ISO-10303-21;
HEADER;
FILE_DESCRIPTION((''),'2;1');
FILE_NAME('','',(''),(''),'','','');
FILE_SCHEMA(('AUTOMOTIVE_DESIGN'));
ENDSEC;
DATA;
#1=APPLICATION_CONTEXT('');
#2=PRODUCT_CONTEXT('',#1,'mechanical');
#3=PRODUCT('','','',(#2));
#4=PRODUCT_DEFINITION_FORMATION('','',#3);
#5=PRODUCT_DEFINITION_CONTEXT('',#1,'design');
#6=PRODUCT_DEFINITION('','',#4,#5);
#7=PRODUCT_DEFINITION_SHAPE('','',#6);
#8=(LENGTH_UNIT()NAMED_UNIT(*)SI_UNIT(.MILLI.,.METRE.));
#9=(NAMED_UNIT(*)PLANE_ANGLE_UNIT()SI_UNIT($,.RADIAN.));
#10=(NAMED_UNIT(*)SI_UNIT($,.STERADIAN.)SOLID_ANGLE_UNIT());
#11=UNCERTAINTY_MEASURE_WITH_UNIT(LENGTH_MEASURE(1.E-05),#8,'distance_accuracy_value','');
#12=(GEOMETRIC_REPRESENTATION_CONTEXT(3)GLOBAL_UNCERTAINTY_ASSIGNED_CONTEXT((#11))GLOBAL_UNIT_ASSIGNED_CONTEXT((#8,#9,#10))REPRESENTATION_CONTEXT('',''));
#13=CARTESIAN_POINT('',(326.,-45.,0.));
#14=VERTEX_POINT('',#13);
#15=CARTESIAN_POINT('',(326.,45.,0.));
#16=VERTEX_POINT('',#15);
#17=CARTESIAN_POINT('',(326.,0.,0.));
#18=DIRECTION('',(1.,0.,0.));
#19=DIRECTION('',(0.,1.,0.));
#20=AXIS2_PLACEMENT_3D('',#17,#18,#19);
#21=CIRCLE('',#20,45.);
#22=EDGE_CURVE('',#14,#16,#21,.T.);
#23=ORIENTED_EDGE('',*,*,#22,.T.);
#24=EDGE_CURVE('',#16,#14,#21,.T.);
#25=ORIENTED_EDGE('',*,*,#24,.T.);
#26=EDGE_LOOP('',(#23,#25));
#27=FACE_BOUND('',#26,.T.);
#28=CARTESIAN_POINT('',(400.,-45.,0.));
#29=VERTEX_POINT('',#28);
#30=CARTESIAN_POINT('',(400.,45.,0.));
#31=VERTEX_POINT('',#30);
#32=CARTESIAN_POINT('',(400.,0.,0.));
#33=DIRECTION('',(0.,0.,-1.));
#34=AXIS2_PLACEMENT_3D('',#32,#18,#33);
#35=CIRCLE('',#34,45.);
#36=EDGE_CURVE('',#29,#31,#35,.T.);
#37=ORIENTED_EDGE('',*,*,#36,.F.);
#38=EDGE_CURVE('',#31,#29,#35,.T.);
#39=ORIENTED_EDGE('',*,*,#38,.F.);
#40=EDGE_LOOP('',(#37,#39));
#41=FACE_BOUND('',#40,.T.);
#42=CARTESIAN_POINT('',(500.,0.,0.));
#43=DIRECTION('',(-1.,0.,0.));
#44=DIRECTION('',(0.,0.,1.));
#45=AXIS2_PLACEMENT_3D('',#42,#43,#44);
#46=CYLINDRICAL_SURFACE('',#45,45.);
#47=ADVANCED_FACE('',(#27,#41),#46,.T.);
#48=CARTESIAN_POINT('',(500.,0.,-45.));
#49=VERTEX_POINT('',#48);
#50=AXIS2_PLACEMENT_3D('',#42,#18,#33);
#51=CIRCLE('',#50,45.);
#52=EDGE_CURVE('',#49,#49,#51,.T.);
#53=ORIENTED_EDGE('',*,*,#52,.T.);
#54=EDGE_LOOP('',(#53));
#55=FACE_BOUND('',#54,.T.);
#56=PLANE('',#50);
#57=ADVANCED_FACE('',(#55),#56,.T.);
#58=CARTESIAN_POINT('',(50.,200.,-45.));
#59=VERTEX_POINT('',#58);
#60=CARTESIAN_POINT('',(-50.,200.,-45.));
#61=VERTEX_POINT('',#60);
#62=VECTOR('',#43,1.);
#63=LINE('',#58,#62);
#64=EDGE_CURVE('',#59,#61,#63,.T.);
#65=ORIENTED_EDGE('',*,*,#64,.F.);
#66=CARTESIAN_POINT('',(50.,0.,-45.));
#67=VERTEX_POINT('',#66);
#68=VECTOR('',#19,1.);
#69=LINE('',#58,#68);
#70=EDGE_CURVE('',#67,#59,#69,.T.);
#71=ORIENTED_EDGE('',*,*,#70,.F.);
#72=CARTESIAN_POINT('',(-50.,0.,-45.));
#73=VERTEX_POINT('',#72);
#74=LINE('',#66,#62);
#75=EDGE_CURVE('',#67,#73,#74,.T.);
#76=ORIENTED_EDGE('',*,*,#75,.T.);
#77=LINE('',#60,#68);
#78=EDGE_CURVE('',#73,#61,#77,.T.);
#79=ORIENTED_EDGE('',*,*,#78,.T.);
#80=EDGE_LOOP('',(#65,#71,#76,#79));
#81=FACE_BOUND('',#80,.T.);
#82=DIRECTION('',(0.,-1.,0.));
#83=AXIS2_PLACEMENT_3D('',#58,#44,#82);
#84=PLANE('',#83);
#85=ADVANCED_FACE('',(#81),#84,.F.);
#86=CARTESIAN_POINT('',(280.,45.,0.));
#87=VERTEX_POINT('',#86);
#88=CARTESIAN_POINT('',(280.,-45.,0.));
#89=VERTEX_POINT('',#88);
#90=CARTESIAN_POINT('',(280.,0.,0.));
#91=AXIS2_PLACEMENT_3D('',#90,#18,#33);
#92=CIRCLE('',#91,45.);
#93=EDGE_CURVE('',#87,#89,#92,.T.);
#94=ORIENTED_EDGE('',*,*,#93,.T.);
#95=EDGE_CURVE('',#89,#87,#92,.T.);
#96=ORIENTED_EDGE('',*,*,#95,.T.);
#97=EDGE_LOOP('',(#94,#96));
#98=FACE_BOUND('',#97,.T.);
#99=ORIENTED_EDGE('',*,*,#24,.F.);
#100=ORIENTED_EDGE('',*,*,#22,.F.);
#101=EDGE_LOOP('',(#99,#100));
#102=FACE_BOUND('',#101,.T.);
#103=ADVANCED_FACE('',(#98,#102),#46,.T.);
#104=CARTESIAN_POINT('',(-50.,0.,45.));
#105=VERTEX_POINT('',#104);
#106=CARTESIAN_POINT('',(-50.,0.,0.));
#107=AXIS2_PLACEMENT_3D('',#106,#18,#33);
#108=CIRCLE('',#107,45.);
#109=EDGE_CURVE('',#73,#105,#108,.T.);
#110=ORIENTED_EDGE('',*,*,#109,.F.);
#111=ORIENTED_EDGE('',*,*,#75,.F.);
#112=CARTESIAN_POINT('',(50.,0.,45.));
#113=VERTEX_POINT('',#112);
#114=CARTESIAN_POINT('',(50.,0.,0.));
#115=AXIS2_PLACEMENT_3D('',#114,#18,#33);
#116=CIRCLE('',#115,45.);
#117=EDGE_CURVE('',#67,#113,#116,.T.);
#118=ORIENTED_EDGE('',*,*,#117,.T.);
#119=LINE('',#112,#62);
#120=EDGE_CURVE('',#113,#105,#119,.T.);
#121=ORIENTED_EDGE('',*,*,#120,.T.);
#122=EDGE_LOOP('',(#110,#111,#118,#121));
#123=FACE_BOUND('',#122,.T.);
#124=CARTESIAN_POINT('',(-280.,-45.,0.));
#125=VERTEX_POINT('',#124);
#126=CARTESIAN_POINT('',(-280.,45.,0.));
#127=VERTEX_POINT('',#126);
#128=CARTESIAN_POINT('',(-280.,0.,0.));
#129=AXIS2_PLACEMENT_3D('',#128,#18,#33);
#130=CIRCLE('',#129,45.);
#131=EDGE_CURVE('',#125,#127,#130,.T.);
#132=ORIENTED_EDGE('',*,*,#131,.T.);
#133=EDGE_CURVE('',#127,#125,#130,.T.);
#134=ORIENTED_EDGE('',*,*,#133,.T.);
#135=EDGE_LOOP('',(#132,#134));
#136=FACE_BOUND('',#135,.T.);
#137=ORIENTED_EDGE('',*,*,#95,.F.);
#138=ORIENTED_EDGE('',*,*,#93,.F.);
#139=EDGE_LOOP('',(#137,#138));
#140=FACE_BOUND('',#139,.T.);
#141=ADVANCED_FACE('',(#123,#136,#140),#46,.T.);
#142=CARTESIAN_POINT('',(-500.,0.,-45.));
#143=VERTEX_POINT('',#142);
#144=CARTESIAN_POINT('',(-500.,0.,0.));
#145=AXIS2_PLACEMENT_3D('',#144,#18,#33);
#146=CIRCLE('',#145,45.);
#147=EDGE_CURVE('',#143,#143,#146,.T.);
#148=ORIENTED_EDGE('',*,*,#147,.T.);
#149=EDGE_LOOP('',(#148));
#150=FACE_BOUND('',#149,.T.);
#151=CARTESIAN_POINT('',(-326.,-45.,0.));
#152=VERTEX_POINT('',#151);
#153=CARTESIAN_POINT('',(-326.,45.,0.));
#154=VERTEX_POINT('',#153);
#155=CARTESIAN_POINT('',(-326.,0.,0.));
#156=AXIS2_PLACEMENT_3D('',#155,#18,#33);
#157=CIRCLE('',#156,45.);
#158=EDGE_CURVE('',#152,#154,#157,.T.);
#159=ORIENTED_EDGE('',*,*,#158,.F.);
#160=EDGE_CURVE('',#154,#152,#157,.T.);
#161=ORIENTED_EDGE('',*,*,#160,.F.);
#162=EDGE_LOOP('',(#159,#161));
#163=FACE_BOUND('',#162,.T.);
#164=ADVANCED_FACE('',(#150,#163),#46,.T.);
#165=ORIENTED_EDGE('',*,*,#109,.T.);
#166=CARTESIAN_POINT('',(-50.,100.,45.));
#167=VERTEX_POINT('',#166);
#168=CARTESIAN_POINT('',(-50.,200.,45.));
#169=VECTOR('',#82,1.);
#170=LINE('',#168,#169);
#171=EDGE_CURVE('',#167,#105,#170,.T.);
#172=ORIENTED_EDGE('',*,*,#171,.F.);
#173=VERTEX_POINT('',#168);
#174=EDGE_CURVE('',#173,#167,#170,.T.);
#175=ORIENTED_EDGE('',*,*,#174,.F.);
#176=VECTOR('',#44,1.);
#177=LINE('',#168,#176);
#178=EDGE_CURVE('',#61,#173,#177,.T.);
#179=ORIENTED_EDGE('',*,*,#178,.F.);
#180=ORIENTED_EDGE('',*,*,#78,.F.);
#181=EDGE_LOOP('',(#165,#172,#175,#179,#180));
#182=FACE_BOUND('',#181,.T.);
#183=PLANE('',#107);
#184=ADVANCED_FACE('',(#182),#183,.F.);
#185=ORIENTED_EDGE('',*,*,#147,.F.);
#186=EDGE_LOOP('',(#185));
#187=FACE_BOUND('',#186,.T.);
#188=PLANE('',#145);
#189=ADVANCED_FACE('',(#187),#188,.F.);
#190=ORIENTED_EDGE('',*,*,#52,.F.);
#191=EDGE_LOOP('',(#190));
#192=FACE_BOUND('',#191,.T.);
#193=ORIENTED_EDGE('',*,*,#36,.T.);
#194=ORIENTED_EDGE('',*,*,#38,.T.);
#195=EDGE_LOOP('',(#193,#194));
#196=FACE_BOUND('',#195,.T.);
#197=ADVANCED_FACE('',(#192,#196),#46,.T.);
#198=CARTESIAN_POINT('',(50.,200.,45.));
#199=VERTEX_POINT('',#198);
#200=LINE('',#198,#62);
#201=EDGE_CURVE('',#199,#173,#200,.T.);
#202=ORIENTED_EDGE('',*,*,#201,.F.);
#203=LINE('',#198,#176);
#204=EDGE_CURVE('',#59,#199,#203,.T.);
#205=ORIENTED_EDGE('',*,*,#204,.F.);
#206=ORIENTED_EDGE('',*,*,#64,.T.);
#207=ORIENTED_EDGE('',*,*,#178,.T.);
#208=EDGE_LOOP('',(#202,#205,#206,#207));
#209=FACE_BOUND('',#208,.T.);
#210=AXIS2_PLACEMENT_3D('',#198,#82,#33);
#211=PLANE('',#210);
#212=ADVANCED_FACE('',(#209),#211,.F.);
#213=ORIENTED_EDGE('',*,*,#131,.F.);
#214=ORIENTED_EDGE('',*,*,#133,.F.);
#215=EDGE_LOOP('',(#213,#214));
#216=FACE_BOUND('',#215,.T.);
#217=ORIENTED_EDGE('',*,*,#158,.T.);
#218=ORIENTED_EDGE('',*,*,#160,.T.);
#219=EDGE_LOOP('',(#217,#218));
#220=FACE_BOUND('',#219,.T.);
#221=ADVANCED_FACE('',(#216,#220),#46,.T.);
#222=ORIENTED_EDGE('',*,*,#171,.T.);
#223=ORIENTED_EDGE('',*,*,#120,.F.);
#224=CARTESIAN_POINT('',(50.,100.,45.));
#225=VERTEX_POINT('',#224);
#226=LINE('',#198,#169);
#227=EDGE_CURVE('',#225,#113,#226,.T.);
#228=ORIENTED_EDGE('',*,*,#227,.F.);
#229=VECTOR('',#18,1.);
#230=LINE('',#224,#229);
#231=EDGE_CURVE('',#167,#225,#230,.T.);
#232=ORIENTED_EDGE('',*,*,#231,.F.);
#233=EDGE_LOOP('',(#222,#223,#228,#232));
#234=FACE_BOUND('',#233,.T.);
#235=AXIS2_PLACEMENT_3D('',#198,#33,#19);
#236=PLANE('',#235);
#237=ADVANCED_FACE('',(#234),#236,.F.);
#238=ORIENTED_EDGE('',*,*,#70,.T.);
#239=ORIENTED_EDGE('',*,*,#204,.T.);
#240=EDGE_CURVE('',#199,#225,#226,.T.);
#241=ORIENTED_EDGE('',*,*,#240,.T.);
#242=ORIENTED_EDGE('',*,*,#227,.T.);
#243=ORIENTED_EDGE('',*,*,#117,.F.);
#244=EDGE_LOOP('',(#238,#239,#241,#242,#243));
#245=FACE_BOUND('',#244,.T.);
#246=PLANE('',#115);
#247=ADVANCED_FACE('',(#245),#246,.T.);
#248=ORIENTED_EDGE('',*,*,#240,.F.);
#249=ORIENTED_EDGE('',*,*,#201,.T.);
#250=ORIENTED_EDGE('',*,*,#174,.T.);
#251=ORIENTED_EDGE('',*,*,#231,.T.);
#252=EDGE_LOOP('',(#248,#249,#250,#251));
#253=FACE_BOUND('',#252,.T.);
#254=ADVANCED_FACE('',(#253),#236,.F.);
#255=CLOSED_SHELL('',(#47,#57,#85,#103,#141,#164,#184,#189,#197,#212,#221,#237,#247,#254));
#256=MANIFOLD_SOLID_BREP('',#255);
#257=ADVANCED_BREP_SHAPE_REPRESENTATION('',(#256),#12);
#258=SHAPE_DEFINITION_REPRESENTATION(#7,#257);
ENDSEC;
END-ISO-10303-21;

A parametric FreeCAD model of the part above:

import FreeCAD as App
import Part
import Sketcher


def add_polygon(sketch, points):
    """Adds a closed chain of lines whose ends are joined by coincident constraints."""
    first, n = sketch.GeometryCount, len(points)
    for a, b in zip(points, points[1:] + points[:1]):
        sketch.addGeometry(Part.LineSegment(App.Vector(*a, 0), App.Vector(*b, 0)), False)
    for i in range(n):
        sketch.addConstraint(Sketcher.Constraint("Coincident", first + i, 2, first + (i + 1) % n, 1))

doc = App.newDocument("Part")
body = doc.addObject("PartDesign::Body", "Body")

# Sketch on YZ plane
sketch1 = body.newObject("Sketcher::SketchObject", "Sketch")
sketch1.AttachmentSupport = (doc.getObject("YZ_Plane"), [""])
sketch1.MapMode = "FlatFace"
sketch1.addGeometry(Part.Circle(App.Vector(0, 0, 0), App.Vector(0, 0, 1), 45), False)
sketch1.addConstraint([
    Sketcher.Constraint("Coincident", 0, 3, -1, 1),
    Sketcher.Constraint("Diameter", 0, 90.0),
])
pad1 = body.newObject("PartDesign::Pad", "Pad")
pad1.Profile = sketch1
pad1.Length = 1000
pad1.Midplane = True

# Sketch on YZ plane
sketch2 = body.newObject("Sketcher::SketchObject", "Sketch001")
sketch2.AttachmentSupport = (doc.getObject("YZ_Plane"), [""])
sketch2.MapMode = "FlatFace"
add_polygon(sketch2, [(200, 45), (0, 45), (0, -45), (200, -45)])  # lines 0-3
sketch2.addConstraint([
    Sketcher.Constraint("Horizontal", 0),
    Sketcher.Constraint("Vertical", 1),
    Sketcher.Constraint("Horizontal", 2),
    Sketcher.Constraint("Vertical", 3),
    Sketcher.Constraint("Symmetric", 0, 2, 1, 2, -1, 1),
    Sketcher.Constraint("DistanceX", 0, 2, 0, 1, 200.0),
    Sketcher.Constraint("DistanceY", 1, 2, 1, 1, 90.0),
])
pad2 = body.newObject("PartDesign::Pad", "Pad001")
pad2.Profile = sketch2
pad2.Length = 100
pad2.Midplane = True

doc.recompute()
